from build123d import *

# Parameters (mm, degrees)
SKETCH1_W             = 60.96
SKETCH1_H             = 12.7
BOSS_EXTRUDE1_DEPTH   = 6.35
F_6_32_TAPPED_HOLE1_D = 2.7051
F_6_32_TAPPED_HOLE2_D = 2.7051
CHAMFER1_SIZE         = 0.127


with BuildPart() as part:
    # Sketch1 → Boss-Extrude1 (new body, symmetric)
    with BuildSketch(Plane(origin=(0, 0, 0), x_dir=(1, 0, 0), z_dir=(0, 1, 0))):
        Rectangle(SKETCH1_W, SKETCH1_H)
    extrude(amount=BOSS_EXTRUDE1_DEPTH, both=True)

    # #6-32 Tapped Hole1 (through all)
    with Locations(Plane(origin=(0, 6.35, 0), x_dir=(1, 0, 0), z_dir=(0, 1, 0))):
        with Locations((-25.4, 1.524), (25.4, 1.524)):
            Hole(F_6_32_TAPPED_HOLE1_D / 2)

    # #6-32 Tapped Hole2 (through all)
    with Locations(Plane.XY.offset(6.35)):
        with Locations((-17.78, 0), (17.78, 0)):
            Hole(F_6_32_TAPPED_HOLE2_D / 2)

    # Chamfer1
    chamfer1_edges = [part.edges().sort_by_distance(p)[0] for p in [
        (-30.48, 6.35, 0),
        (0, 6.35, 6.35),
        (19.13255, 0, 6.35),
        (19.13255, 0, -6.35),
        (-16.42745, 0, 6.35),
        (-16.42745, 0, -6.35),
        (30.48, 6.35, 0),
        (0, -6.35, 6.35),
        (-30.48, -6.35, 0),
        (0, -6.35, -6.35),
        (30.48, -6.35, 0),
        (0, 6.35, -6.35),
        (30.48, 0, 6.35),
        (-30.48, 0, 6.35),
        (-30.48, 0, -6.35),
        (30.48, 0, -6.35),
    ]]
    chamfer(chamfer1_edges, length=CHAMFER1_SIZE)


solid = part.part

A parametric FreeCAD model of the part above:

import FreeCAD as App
import Part
import Sketcher

V = App.Vector
Q = App.Units.Quantity


def edges_at(feature, points):
    """Names of the edges that pass closest to the given points."""
    edges = feature.Shape.Edges
    near = lambda p: min(range(len(edges)), key=lambda i: edges[i].distToShape(Part.Vertex(*p))[0])
    return sorted({f"Edge{near(p) + 1}" for p in points})

doc = App.newDocument("Part")
body = doc.addObject("PartDesign::Body", "Body")

# Sketch on XZ plane
sketch1 = doc.addObject("Sketcher::SketchObject", "Sketch")
body.addObject(sketch1)
sketch1.AttachmentSupport = (doc.XZ_Plane, [""])
sketch1.MapMode = "FlatFace"
sketch1.addGeometry(Part.LineSegment(V(-30, -6, 0), V(-30, 6, 0)), False)
sketch1.addGeometry(Part.LineSegment(V(-30, 6, 0), V(30, 6, 0)), False)
sketch1.addGeometry(Part.LineSegment(V(30, 6, 0), V(30, -6, 0)), False)
sketch1.addGeometry(Part.LineSegment(V(30, -6, 0), V(-30, -6, 0)), False)
sketch1.addConstraint(Sketcher.Constraint("Coincident", 0, 2, 1, 1))
sketch1.addConstraint(Sketcher.Constraint("Coincident", 1, 2, 2, 1))
sketch1.addConstraint(Sketcher.Constraint("Coincident", 2, 2, 3, 1))
sketch1.addConstraint(Sketcher.Constraint("Coincident", 3, 2, 0, 1))
sketch1.addConstraint(Sketcher.Constraint("Vertical", 0))
sketch1.addConstraint(Sketcher.Constraint("Horizontal", 1))
sketch1.addConstraint(Sketcher.Constraint("Vertical", 2))
sketch1.addConstraint(Sketcher.Constraint("Horizontal", 3))
sketch1.addConstraint(Sketcher.Constraint("Symmetric", 0, 2, 2, 2, -1, 1))
sketch1.addConstraint(Sketcher.Constraint("DistanceX", 1, 1, 1, 2, Q("2.4 in")))
sketch1.addConstraint(Sketcher.Constraint("DistanceY", 0, 1, 0, 2, Q("0.5 in")))
pad1 = doc.addObject("PartDesign::Pad", "Pad")
body.addObject(pad1)
pad1.Profile = sketch1
pad1.Length = Q("0.5 in")
pad1.Midplane = True

# Sketch on XZ plane
sketch2 = doc.addObject("Sketcher::SketchObject", "Sketch001")
body.addObject(sketch2)
sketch2.AttachmentSupport = (doc.XZ_Plane, [""])
sketch2.MapMode = "FlatFace"
sketch2.AttachmentOffset = App.Placement(V(0, 0, -0.25 * 25.4), App.Rotation())
sketch2.addGeometry(Part.Circle(V(-25.4, -1.5, 0), V(0, 0, 1), 1.4), False)
sketch2.addGeometry(Part.Circle(V(25.4, -1.5, 0), V(0, 0, 1), 1.4), False)
sketch2.addConstraint(Sketcher.Constraint("Equal", 0, 1))
sketch2.addConstraint(Sketcher.Constraint("Symmetric", 0, 3, 1, 3, -2))
sketch2.addConstraint(Sketcher.Constraint("DistanceX", 0, 3, -1, 1, Q("1 in")))
sketch2.addConstraint(Sketcher.Constraint("Diameter", 0, Q("0.1065 in")))
sketch2.addConstraint(Sketcher.Constraint("DistanceY", 0, 3, -1, 1, Q("0.06 in")))
doc.recompute()
hole = doc.addObject("PartDesign::Hole", "Hole")
body.addObject(hole)
hole.Profile = sketch2
hole.ThreadType = "None"
hole.Diameter = Q("0.1065 in")
hole.DepthType = "ThroughAll"
hole.Reversed = True

# Sketch on XY plane
sketch3 = doc.addObject("Sketcher::SketchObject", "Sketch002")
body.addObject(sketch3)
sketch3.AttachmentSupport = (doc.XY_Plane, [""])
sketch3.MapMode = "FlatFace"
sketch3.AttachmentOffset = App.Placement(V(0, 0, 0.25 * 25.4), App.Rotation())
sketch3.addGeometry(Part.Circle(V(-17.8, 0, 0), V(0, 0, 1), 1.4), False)
sketch3.addGeometry(Part.Circle(V(17.8, 0, 0), V(0, 0, 1), 1.4), False)
sketch3.addConstraint(Sketcher.Constraint("Equal", 0, 1))
sketch3.addConstraint(Sketcher.Constraint("Symmetric", 0, 3, 1, 3, -1, 1))
sketch3.addConstraint(Sketcher.Constraint("PointOnObject", 0, 3, -1))
sketch3.addConstraint(Sketcher.Constraint("Diameter", 0, Q("0.1065 in")))
sketch3.addConstraint(Sketcher.Constraint("DistanceX", 0, 3, -1, 1, Q("0.7 in")))
doc.recompute()
hole2 = doc.addObject("PartDesign::Hole", "Hole001")
body.addObject(hole2)
hole2.Profile = sketch3
hole2.ThreadType = "None"
hole2.Diameter = Q("0.1065 in")
hole2.DepthType = "ThroughAll"
doc.recompute()

chamfer = doc.addObject("PartDesign::Chamfer", "Chamfer")
body.addObject(chamfer)
chamfer.Base = (hole2, edges_at(hole2, [
    (-30.48, 6.35, 0),
    (0, 6.35, 6.35),
    (19.133, 0, 6.35),
    (19.133, 0, -6.35),
    (-16.427, 0, 6.35),
    (-16.427, 0, -6.35),
    (30.48, 6.35, 0),
    (0, -6.35, 6.35),
    (-30.48, -6.35, 0),
    (0, -6.35, -6.35),
    (30.48, -6.35, 0),
    (0, 6.35, -6.35),
    (30.48, 0, 6.35),
    (-30.48, 0, 6.35),
    (-30.48, 0, -6.35),
    (30.48, 0, -6.35),
]))
chamfer.Size = Q("0.005 in")

doc.recompute()
